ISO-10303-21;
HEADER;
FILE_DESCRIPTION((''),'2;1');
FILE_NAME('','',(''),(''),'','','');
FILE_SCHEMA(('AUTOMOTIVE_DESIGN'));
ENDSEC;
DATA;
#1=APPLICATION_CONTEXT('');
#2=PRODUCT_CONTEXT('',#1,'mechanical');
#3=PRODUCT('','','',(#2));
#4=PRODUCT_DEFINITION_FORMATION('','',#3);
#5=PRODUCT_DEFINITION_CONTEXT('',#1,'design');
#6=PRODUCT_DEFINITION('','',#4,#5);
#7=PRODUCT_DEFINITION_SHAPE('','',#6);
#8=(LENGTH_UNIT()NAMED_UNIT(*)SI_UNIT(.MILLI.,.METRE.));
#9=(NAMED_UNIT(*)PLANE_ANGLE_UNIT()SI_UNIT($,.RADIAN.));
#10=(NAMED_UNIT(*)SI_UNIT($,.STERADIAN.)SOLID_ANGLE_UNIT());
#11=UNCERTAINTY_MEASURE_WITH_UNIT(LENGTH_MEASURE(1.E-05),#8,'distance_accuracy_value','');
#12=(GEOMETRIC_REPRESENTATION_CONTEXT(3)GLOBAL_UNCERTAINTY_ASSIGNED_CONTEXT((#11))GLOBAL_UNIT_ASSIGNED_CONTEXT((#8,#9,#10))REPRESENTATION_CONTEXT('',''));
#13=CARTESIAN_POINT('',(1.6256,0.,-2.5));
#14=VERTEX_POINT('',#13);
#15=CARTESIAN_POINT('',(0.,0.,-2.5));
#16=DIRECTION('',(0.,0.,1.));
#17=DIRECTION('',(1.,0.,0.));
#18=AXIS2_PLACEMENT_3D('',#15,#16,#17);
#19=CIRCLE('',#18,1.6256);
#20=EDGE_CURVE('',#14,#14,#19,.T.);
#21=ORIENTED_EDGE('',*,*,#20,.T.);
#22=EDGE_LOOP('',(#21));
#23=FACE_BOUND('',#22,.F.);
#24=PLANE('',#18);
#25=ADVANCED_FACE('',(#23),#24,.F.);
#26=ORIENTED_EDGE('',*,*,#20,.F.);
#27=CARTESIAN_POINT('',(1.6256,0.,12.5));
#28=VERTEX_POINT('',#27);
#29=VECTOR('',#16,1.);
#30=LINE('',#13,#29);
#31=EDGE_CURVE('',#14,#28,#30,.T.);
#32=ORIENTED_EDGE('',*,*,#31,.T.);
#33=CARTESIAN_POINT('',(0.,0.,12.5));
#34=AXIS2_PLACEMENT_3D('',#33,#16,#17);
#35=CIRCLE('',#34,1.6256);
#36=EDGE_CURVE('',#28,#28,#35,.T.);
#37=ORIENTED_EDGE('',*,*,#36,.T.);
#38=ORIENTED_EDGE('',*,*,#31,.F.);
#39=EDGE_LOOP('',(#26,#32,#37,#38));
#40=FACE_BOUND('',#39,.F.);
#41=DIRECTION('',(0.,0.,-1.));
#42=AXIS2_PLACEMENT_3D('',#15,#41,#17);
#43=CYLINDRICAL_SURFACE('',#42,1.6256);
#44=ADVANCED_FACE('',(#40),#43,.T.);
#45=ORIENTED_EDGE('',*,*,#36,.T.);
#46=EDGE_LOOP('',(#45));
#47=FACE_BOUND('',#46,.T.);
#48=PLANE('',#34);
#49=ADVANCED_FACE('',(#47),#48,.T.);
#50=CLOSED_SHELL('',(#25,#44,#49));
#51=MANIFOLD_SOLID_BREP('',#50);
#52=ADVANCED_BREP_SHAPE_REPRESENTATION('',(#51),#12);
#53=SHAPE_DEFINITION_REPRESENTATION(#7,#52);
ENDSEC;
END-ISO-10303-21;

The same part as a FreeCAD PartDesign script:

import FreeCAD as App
import Part
import Sketcher
Q = App.Units.Quantity

doc = App.newDocument("Part")
body = doc.addObject("PartDesign::Body", "Body")

# Sketch on XY plane
sketch1 = body.newObject("Sketcher::SketchObject", "Sketch")
sketch1.AttachmentSupport = (doc.getObject("XY_Plane"), [""])
sketch1.MapMode = "FlatFace"
sketch1.AttachmentOffset = App.Placement(App.Vector(0, 0, -2.5), App.Rotation())
sketch1.addGeometry(Part.Circle(App.Vector(0, 0, 0), App.Vector(0, 0, 1), 1.6), False)
sketch1.addConstraint(Sketcher.Constraint("Coincident", 0, 3, -1, 1))
sketch1.addConstraint(Sketcher.Constraint("Diameter", 0, Q("3.2512 mm")))
pad1 = body.newObject("PartDesign::Pad", "Pad")
pad1.Profile = sketch1
pad1.Length = 15

doc.recompute()
